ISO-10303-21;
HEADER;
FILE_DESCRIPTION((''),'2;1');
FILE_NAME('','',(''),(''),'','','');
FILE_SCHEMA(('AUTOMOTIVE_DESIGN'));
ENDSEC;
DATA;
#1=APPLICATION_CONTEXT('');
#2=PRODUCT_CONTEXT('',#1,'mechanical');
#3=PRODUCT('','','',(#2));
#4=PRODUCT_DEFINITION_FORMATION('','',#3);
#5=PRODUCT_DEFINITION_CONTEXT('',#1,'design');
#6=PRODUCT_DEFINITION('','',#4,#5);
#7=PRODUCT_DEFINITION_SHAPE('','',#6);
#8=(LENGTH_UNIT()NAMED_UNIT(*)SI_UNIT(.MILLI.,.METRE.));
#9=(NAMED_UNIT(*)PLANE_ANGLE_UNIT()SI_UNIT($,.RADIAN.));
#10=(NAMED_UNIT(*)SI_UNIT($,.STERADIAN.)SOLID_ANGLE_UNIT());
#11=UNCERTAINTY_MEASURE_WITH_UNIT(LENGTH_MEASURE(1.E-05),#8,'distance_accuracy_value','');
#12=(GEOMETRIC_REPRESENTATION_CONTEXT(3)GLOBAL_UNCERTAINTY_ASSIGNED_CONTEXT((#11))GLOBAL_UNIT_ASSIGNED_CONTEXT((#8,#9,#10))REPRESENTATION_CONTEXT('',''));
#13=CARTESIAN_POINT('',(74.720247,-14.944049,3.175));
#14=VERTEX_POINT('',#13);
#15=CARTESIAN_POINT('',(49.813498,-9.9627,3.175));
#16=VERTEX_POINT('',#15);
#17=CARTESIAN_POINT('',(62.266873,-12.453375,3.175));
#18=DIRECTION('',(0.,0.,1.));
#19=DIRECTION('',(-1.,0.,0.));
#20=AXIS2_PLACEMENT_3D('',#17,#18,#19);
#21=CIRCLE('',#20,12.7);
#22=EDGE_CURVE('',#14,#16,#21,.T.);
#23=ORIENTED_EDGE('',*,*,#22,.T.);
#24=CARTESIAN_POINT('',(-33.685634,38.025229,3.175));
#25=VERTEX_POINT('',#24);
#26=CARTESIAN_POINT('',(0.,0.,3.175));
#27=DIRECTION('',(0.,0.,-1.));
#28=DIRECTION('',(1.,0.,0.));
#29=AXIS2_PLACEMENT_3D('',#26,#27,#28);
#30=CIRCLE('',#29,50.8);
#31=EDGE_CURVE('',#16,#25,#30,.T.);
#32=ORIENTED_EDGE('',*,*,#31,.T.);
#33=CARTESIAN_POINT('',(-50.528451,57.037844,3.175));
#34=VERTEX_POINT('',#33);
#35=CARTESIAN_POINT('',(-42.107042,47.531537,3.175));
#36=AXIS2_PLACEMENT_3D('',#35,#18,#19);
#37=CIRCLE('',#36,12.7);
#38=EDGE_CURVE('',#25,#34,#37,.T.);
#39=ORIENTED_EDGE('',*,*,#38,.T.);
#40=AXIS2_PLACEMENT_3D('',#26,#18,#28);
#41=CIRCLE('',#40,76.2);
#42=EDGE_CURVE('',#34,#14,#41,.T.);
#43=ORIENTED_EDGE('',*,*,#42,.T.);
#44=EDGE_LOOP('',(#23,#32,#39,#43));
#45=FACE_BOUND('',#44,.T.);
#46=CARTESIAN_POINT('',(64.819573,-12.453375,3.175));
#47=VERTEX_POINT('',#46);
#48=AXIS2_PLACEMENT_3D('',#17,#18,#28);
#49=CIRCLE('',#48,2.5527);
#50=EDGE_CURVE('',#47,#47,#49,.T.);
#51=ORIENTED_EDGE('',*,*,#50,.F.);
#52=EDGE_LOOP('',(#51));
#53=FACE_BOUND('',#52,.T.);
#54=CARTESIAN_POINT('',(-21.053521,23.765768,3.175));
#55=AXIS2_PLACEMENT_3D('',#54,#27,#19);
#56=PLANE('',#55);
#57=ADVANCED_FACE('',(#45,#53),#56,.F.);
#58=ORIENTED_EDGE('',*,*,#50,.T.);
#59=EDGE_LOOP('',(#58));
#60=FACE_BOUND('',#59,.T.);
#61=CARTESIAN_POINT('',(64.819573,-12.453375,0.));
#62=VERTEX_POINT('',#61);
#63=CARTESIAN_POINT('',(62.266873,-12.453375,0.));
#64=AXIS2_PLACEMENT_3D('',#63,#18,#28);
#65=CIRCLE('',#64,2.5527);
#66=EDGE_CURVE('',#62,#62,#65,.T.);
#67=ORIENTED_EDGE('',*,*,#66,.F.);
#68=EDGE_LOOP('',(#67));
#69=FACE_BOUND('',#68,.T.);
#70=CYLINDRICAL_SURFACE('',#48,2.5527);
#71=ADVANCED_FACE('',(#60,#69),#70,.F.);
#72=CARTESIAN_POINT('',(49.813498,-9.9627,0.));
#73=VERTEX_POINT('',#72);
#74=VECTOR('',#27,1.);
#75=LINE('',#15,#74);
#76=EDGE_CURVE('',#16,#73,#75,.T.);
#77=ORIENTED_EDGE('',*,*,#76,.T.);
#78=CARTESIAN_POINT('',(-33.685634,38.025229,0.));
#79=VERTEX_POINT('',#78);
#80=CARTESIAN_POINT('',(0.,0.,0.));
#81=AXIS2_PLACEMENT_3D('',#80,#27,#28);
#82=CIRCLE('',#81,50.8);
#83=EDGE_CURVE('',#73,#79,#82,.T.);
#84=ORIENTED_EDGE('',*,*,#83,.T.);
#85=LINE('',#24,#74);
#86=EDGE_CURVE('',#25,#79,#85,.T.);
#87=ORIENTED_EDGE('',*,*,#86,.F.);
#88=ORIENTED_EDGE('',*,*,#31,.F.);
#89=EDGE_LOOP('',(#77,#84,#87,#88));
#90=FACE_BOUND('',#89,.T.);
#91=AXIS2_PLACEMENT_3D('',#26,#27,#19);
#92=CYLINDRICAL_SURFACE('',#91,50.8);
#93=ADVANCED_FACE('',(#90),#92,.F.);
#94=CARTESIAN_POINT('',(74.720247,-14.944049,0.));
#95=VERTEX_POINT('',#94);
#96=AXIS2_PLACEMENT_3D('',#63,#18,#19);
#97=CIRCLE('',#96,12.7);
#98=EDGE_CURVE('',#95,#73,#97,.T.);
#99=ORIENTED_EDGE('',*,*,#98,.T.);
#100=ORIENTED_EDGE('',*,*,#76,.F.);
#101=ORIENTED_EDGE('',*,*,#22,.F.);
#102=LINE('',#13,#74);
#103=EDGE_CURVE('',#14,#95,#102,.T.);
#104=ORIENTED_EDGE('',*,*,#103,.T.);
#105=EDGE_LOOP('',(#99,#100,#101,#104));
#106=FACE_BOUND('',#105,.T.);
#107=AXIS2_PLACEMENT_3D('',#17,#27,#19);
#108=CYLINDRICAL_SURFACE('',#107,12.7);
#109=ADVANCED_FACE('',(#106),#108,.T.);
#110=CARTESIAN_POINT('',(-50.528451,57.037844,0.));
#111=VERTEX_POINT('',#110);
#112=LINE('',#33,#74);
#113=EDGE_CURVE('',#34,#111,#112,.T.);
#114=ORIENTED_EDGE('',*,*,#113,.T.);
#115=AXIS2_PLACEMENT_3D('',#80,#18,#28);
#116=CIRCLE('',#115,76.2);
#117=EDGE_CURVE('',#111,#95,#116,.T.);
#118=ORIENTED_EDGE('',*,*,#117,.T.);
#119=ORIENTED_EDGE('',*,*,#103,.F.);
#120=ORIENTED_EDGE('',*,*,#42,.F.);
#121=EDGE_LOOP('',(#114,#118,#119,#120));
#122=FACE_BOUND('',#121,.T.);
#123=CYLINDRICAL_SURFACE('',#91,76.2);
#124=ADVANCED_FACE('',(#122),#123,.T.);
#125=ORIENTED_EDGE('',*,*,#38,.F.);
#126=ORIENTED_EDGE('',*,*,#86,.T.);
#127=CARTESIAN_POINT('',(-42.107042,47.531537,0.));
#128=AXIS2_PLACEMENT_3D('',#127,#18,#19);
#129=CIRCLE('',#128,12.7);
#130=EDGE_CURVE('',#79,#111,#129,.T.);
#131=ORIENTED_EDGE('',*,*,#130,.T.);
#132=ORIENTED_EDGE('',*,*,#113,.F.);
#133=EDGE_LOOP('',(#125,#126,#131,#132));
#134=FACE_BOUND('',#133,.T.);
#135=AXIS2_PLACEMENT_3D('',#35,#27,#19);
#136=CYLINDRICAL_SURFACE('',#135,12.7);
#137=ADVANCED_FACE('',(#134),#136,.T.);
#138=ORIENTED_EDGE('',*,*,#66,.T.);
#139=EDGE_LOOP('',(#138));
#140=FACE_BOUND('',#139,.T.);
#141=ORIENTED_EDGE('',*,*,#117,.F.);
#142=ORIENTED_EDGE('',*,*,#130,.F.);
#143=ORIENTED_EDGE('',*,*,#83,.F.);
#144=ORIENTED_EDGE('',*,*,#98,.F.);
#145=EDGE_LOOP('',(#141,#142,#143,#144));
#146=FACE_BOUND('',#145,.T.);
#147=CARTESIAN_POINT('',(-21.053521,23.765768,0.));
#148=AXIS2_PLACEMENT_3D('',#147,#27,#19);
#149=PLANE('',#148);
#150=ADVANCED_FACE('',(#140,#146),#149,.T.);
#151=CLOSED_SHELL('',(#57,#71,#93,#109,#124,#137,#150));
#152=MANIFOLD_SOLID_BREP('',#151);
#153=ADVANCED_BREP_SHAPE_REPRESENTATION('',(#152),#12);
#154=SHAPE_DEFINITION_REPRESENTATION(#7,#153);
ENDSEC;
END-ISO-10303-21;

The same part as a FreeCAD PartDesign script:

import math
import FreeCAD as App
import Part
import Sketcher
Q = App.Units.Quantity

doc = App.newDocument("Part")
body = doc.addObject("PartDesign::Body", "Body")

# Sketch on XY plane
sketch1 = doc.addObject("Sketcher::SketchObject", "Sketch")
body.addObject(sketch1)
sketch1.AttachmentSupport = (doc.XY_Plane, [""])
sketch1.MapMode = "FlatFace"
sketch1.addGeometry([
    Part.ArcOfCircle(Part.Circle(App.Vector(0, 0, 0), App.Vector(0, 0, 1), 76), math.radians(132), math.radians(349)),
    Part.ArcOfCircle(Part.Circle(App.Vector(62, -12, 0), App.Vector(0, 0, 1), 13), math.radians(-11), math.radians(169)),
    Part.ArcOfCircle(Part.Circle(App.Vector(0, 0, 0), App.Vector(0, 0, 1), 51), math.radians(132), math.radians(349)),
    Part.ArcOfCircle(Part.Circle(App.Vector(-42, 48, 0), App.Vector(0, 0, 1), 13), math.radians(-48), math.radians(132)),
], False)
sketch1.addConstraint([
    Sketcher.Constraint("Tangent", 0, 2, 1, 1),
    Sketcher.Constraint("Tangent", 1, 2, 2, 2),
    Sketcher.Constraint("Tangent", 2, 1, 3, 1),
    Sketcher.Constraint("Tangent", 3, 2, 0, 1),
    Sketcher.Constraint("Coincident", 0, 3, -1, 1),
    Sketcher.Constraint("Coincident", 2, 3, -1, 1),
    Sketcher.Constraint("Radius", 0, Q("3 in")),
    Sketcher.Constraint("Radius", 2, Q("2 in")),
    Sketcher.Constraint("DistanceX", -1, 1, 1, 2, 49.813498),
    Sketcher.Constraint("DistanceY", -1, 1, 2, 1, 38.025229),
])
pad1 = doc.addObject("PartDesign::Pad", "Pad")
body.addObject(pad1)
pad1.Profile = sketch1
pad1.Length = Q("0.125 in")

# Sketch on XY plane
sketch2 = doc.addObject("Sketcher::SketchObject", "Sketch001")
body.addObject(sketch2)
sketch2.AttachmentSupport = (doc.XY_Plane, [""])
sketch2.MapMode = "FlatFace"
sketch2.AttachmentOffset = App.Placement(App.Vector(0, 0, 0.125 * 25.4), App.Rotation())
sketch2.addGeometry(Part.Circle(App.Vector(62.3, -12.5, 0), App.Vector(0, 0, 1), 2.6), False)
sketch2.addConstraint([
    Sketcher.Constraint("Diameter", 0, Q("0.201 in")),
    Sketcher.Constraint("DistanceX", -1, 1, 0, 3, 62.266873),
    Sketcher.Constraint("DistanceY", 0, 3, -1, 1, 12.453375),
])
doc.recompute()
hole = doc.addObject("PartDesign::Hole", "Hole")
body.addObject(hole)
hole.Profile = sketch2
hole.ThreadType = "None"
hole.Diameter = Q("0.201 in")
hole.DepthType = "ThroughAll"

doc.recompute()
